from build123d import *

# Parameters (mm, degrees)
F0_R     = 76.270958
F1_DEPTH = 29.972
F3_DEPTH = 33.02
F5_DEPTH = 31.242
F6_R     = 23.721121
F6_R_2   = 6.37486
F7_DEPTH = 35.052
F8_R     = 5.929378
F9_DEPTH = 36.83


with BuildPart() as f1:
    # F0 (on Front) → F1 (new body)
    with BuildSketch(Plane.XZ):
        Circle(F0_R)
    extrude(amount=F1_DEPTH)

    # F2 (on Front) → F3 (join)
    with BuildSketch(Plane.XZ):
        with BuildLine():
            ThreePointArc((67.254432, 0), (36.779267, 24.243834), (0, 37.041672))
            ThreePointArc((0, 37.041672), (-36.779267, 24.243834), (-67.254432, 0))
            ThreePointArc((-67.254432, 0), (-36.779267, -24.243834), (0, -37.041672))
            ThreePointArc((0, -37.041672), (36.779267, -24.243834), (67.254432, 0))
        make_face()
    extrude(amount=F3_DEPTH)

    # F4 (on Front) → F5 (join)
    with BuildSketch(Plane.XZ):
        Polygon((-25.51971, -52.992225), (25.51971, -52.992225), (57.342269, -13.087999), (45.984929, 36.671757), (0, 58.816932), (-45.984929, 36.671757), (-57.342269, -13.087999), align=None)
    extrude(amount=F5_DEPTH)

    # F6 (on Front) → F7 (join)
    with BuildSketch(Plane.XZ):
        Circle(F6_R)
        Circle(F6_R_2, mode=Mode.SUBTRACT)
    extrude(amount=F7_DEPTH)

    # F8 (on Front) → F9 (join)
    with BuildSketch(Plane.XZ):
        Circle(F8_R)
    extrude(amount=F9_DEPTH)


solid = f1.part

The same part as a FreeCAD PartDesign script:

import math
import FreeCAD as App
import Part
import Sketcher
from FreeCAD import Vector
Q = App.Units.Quantity


def add_polygon(sketch, points):
    """Adds a closed chain of lines whose ends are joined by coincident constraints."""
    first, n = sketch.GeometryCount, len(points)
    for a, b in zip(points, points[1:] + points[:1]):
        sketch.addGeometry(Part.LineSegment(App.Vector(*a, 0), App.Vector(*b, 0)), False)
    for i in range(n):
        sketch.addConstraint(Sketcher.Constraint("Coincident", first + i, 2, first + (i + 1) % n, 1))

doc = App.newDocument("Part")
body = doc.addObject("PartDesign::Body", "Body")

# Sketch on XZ plane
sketch1 = body.newObject("Sketcher::SketchObject", "Sketch")
sketch1.AttachmentSupport = (doc.getObject("XZ_Plane"), [""])
sketch1.MapMode = "FlatFace"
sketch1.addGeometry(Part.Circle(Vector(0, 0, 0), Vector(0, 0, 1), 76), False)
sketch1.addConstraint([
    Sketcher.Constraint("Coincident", 0, 3, -1, 1),
    Sketcher.Constraint("Diameter", 0, 152.541916),
])
pad1 = body.newObject("PartDesign::Pad", "Pad")
pad1.Profile = sketch1
pad1.Length = Q("1.18 in")

# Sketch on XZ plane
sketch2 = body.newObject("Sketcher::SketchObject", "Sketch001")
sketch2.AttachmentSupport = (doc.getObject("XZ_Plane"), [""])
sketch2.MapMode = "FlatFace"
sketch2.addGeometry([
    Part.ArcOfCircle(Part.Circle(Vector(-19, -77, 0), Vector(0, 0, 1), 116), math.radians(42), math.radians(80)),
    Part.ArcOfCircle(Part.Circle(Vector(19, -77, 0), Vector(0, 0, 1), 116), math.radians(100), math.radians(138)),
    Part.ArcOfCircle(Part.Circle(Vector(19, 77, 0), Vector(0, 0, 1), 116), math.radians(-138), math.radians(-100)),
    Part.ArcOfCircle(Part.Circle(Vector(-19, 77, 0), Vector(0, 0, 1), 116), math.radians(-80), math.radians(-42)),
], False)
sketch2.addConstraint([
    Sketcher.Constraint("Coincident", 0, 2, 1, 1),
    Sketcher.Constraint("Coincident", 1, 2, 2, 1),
    Sketcher.Constraint("Coincident", 2, 2, 3, 1),
    Sketcher.Constraint("Coincident", 3, 2, 0, 1),
    Sketcher.Constraint("Equal", 0, 1),
    Sketcher.Constraint("Equal", 1, 2),
    Sketcher.Constraint("Equal", 2, 3),
    Sketcher.Constraint("Symmetric", 0, 3, 2, 3, -1, 1),
    Sketcher.Constraint("Symmetric", 1, 3, 3, 3, -1, 1),
    Sketcher.Constraint("Symmetric", 0, 3, 1, 3, -2),
    Sketcher.Constraint("Radius", 0, 116.053596),
    Sketcher.Constraint("DistanceX", 1, 2, -1, 1, 67.254432),
    Sketcher.Constraint("DistanceY", 1, 3, 0, 2, 114.452808),
])
pad2 = body.newObject("PartDesign::Pad", "Pad001")
pad2.Profile = sketch2
pad2.Length = Q("1.3 in")

# Sketch on XZ plane
sketch3 = body.newObject("Sketcher::SketchObject", "Sketch002")
sketch3.AttachmentSupport = (doc.getObject("XZ_Plane"), [""])
sketch3.MapMode = "FlatFace"
add_polygon(sketch3, [(-26, -53), (26, -53), (57, -13), (46, 37), (0, 59), (-46, 37), (-57, -13)])  # lines 0-6
sketch3.addConstraint([
    Sketcher.Constraint("Horizontal", 0),
    Sketcher.Constraint("Symmetric", 2, 2, 4, 2, -2),
    Sketcher.Constraint("Symmetric", 1, 2, 5, 2, -2),
    Sketcher.Constraint("PointOnObject", 3, 2, -2),
    Sketcher.Constraint("Equal", 1, 2),
    Sketcher.Constraint("Equal", 2, 3),
    Sketcher.Constraint("Equal", 5, 6),
    Sketcher.Constraint("DistanceX", 4, 2, 1, 2, Q("4.0679999 in")),
    Sketcher.Constraint("DistanceX", 0, 1, 0, 2, 51.03942),
    Sketcher.Constraint("DistanceY", 1, 2, -1, 1, 13.087999),
    Sketcher.Constraint("Distance", 1, 51.039421),
    Sketcher.Constraint("DistanceX", -1, 1, 1, 2, 57.342269),
])
pad3 = body.newObject("PartDesign::Pad", "Pad002")
pad3.Profile = sketch3
pad3.Length = Q("1.23 in")

# Sketch on XZ plane
sketch4 = body.newObject("Sketcher::SketchObject", "Sketch003")
sketch4.AttachmentSupport = (doc.getObject("XZ_Plane"), [""])
sketch4.MapMode = "FlatFace"
sketch4.addGeometry([
    Part.Circle(Vector(0, 0, 0), Vector(0, 0, 1), 24),
    Part.Circle(Vector(0, 0, 0), Vector(0, 0, 1), 6),
], False)
sketch4.addConstraint([
    Sketcher.Constraint("Coincident", 0, 3, -1, 1),
    Sketcher.Constraint("Coincident", 1, 3, -1, 1),
    Sketcher.Constraint("Diameter", 1, 12.74972),
    Sketcher.Constraint("Diameter", 0, 47.442242),
])
pad4 = body.newObject("PartDesign::Pad", "Pad003")
pad4.Profile = sketch4
pad4.Length = Q("1.38 in")

# Sketch on XZ plane
sketch5 = body.newObject("Sketcher::SketchObject", "Sketch004")
sketch5.AttachmentSupport = (doc.getObject("XZ_Plane"), [""])
sketch5.MapMode = "FlatFace"
sketch5.addGeometry(Part.Circle(Vector(0, 0, 0), Vector(0, 0, 1), 6), False)
sketch5.addConstraint([
    Sketcher.Constraint("Coincident", 0, 3, -1, 1),
    Sketcher.Constraint("Diameter", 0, 11.858756),
])
pad5 = body.newObject("PartDesign::Pad", "Pad004")
pad5.Profile = sketch5
pad5.Length = Q("1.45 in")

doc.recompute()
